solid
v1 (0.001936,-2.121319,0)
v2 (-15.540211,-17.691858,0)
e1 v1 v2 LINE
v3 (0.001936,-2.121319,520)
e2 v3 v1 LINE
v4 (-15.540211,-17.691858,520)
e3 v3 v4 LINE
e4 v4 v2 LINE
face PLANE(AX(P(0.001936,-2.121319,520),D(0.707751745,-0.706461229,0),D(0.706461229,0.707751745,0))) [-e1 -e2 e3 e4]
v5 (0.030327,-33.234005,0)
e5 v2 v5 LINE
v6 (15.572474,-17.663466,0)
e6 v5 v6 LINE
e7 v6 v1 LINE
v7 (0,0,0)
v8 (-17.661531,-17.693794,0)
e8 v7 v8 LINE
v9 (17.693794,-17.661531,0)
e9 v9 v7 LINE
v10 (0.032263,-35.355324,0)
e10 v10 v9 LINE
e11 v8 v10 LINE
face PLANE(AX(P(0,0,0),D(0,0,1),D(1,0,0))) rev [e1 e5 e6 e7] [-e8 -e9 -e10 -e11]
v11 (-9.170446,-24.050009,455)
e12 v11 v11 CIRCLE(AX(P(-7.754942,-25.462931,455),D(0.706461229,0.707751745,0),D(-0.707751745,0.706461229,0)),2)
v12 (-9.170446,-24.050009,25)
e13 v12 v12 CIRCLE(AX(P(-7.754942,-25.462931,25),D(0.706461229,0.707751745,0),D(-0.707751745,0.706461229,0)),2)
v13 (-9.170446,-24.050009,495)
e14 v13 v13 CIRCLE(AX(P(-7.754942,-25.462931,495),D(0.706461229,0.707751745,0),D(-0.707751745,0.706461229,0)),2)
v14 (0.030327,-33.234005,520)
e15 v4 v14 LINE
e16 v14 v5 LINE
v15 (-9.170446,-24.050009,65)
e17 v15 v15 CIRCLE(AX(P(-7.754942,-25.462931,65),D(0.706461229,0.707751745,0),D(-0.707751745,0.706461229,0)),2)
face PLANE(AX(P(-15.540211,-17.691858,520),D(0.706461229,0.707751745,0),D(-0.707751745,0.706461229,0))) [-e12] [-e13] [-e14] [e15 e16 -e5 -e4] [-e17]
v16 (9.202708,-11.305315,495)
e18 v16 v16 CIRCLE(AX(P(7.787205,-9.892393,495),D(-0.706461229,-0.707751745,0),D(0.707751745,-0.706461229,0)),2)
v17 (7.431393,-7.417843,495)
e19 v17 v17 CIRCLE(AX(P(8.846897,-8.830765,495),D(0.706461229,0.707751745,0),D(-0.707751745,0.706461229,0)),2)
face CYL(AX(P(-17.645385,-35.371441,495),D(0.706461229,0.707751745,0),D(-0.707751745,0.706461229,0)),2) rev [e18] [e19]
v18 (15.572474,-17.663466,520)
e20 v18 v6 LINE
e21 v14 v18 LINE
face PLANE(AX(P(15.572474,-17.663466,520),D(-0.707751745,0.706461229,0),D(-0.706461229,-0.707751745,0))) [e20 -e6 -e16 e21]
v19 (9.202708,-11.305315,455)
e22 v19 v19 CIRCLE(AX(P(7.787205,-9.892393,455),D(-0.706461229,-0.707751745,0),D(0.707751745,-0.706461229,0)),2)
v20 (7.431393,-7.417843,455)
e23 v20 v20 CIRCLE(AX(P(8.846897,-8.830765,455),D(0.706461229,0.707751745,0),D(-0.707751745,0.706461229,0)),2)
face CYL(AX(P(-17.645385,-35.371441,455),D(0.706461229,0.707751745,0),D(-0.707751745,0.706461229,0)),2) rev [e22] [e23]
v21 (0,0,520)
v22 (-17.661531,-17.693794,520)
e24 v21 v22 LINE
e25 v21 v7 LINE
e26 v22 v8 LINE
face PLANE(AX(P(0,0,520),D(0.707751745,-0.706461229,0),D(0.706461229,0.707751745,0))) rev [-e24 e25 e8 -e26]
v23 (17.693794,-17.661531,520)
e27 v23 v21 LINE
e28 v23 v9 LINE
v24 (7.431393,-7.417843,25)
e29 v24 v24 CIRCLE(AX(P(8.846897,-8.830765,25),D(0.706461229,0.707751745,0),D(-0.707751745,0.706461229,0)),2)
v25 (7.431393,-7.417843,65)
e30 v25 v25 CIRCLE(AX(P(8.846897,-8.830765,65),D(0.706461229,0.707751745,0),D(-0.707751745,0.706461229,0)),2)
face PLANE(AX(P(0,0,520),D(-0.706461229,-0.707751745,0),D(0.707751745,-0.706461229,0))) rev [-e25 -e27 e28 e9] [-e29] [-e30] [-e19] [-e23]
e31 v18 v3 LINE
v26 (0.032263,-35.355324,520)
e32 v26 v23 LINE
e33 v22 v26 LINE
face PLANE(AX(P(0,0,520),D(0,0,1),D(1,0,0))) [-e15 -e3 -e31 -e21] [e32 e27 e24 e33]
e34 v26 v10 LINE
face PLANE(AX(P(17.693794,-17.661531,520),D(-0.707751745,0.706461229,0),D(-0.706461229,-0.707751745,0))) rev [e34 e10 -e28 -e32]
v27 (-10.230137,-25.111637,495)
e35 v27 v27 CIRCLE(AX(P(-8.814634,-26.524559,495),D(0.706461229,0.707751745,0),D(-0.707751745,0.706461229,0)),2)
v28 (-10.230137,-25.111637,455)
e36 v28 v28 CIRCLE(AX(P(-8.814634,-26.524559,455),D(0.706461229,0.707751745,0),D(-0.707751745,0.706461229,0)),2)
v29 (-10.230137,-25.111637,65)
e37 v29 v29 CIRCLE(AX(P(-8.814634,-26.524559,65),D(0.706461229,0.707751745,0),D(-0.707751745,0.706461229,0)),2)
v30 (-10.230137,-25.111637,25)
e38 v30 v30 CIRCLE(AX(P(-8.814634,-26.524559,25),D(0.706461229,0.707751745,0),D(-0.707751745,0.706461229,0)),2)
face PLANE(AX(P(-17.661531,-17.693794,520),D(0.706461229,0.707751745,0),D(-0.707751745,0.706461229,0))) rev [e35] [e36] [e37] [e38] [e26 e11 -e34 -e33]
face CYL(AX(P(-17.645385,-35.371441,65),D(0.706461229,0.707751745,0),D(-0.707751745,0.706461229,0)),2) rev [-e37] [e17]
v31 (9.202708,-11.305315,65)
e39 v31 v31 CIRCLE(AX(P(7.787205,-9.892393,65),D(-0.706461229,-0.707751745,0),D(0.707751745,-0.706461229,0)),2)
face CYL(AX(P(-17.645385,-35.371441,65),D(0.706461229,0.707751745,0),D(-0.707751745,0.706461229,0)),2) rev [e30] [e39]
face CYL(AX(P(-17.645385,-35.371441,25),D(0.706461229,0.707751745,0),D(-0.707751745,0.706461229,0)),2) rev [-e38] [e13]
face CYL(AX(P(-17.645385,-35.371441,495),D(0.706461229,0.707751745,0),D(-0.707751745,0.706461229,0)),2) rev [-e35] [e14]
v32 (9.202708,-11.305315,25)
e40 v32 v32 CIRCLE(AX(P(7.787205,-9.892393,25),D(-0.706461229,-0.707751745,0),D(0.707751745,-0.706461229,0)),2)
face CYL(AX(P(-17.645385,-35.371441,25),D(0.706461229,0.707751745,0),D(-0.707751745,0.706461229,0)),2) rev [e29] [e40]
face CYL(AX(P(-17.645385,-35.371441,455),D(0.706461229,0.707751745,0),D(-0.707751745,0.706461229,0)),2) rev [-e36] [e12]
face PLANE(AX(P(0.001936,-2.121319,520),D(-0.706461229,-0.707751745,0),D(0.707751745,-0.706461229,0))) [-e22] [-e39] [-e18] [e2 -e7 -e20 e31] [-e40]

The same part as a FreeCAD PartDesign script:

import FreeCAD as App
import Part
import Sketcher
Q = App.Units.Quantity

doc = App.newDocument("Part")
params = doc.addObject("Spreadsheet::Sheet", "Params")
for row, (alias, value) in enumerate([
    ("sketch1_length", "25 mm"),
    ("sketch1_length2", "22 mm"),
    ("pad1_length", "520 mm"),
    ("sketch2_diameter", "4 mm"),
], start=1):
    params.set(f"A{row}", alias)
    params.set(f"B{row}", "=" + value)
    params.setAlias(f"B{row}", alias)

body = doc.addObject("PartDesign::Body", "Body")

sketch1 = doc.addObject("Sketcher::SketchObject", "Sketch")
body.addObject(sketch1)
sketch1.AttachmentSupport = (doc.XY_Plane, [""])
sketch1.MapMode = "FlatFace"
sketch1.addGeometry(Part.LineSegment(App.Vector(18, -18, 0), App.Vector(0, 0, 0)), False)
sketch1.addGeometry(Part.LineSegment(App.Vector(0, 0, 0), App.Vector(-18, -18, 0)), False)
sketch1.addGeometry(Part.LineSegment(App.Vector(-18, -18, 0), App.Vector(0, -35, 0)), False)
sketch1.addGeometry(Part.LineSegment(App.Vector(0, -35, 0), App.Vector(18, -18, 0)), False)
sketch1.addGeometry(Part.LineSegment(App.Vector(0, -2, 0), App.Vector(16, -18, 0)), False)
sketch1.addGeometry(Part.LineSegment(App.Vector(16, -18, 0), App.Vector(0, -33, 0)), False)
sketch1.addGeometry(Part.LineSegment(App.Vector(0, -33, 0), App.Vector(-16, -18, 0)), False)
sketch1.addGeometry(Part.LineSegment(App.Vector(-16, -18, 0), App.Vector(0, -2, 0)), False)
sketch1.addConstraint(Sketcher.Constraint("Coincident", 0, 2, 1, 1))
sketch1.addConstraint(Sketcher.Constraint("Coincident", 1, 2, 2, 1))
sketch1.addConstraint(Sketcher.Constraint("Coincident", 2, 2, 3, 1))
sketch1.addConstraint(Sketcher.Constraint("Coincident", 3, 2, 0, 1))
sketch1.addConstraint(Sketcher.Constraint("Coincident", 4, 2, 5, 1))
sketch1.addConstraint(Sketcher.Constraint("Coincident", 5, 2, 6, 1))
sketch1.addConstraint(Sketcher.Constraint("Coincident", 6, 2, 7, 1))
sketch1.addConstraint(Sketcher.Constraint("Coincident", 7, 2, 4, 1))
sketch1.addConstraint(Sketcher.Constraint("Coincident", 0, 2, -1, 1))
sketch1.addConstraint(Sketcher.Constraint("Perpendicular", 0, 1))
sketch1.addConstraint(Sketcher.Constraint("Perpendicular", 1, 2))
sketch1.addConstraint(Sketcher.Constraint("Perpendicular", 2, 3))
sketch1.addConstraint(Sketcher.Constraint("Perpendicular", 3, 4))
sketch1.addConstraint(Sketcher.Constraint("Perpendicular", 4, 5))
sketch1.addConstraint(Sketcher.Constraint("Perpendicular", 5, 6))
sketch1.addConstraint(Sketcher.Constraint("Perpendicular", 6, 7))
sketch1.addConstraint(Sketcher.Constraint("Equal", 0, 1))
sketch1.addConstraint(Sketcher.Constraint("Equal", 4, 5))
sketch1.addConstraint(Sketcher.Constraint("Distance", 0, Q("25 mm")))
sketch1.addConstraint(Sketcher.Constraint("Distance", 4, Q("22 mm")))
sketch1.addConstraint(Sketcher.Constraint("DistanceX", 1, 2, -1, 1, Q("17.661531 mm")))
sketch1.addConstraint(Sketcher.Constraint("DistanceX", 6, 2, -1, 1, Q("15.540211 mm")))
sketch1.addConstraint(Sketcher.Constraint("DistanceY", 7, 2, -1, 1, Q("2.121319 mm")))
sketch1.setExpression("Constraints[18]", "Params.sketch1_length")
sketch1.setExpression("Constraints[19]", "Params.sketch1_length2")
pad1 = doc.addObject("PartDesign::Pad", "Pad")
body.addObject(pad1)
pad1.Profile = sketch1
pad1.setExpression("Length", "Params.pad1_length")

sketch2 = doc.addObject("Sketcher::SketchObject", "Sketch001")
body.addObject(sketch2)
sketch2.Placement = App.Placement(App.Vector(0, 0, 0), App.Rotation(App.Vector(0.707751745, -0.706461229, 0), App.Vector(0, 0, -1.000000001), App.Vector(0.706461229, 0.707751745, 0), "ZXY"))
sketch2.addGeometry(Part.Circle(App.Vector(12.5, -455, 0), App.Vector(0, 0, 1), 2), False)
sketch2.addGeometry(Part.Circle(App.Vector(12.5, -495, 0), App.Vector(0, 0, 1), 2), False)
sketch2.addGeometry(Part.Circle(App.Vector(12.5, -25, 0), App.Vector(0, 0, 1), 2), False)
sketch2.addGeometry(Part.Circle(App.Vector(12.5, -65, 0), App.Vector(0, 0, 1), 2), False)
sketch2.addConstraint(Sketcher.Constraint("Equal", 0, 1))
sketch2.addConstraint(Sketcher.Constraint("Equal", 1, 2))
sketch2.addConstraint(Sketcher.Constraint("Equal", 2, 3))
sketch2.addConstraint(Sketcher.Constraint("Vertical", 0, 3, 1, 3))
sketch2.addConstraint(Sketcher.Constraint("Vertical", 1, 3, 2, 3))
sketch2.addConstraint(Sketcher.Constraint("Vertical", 2, 3, 3, 3))
sketch2.addConstraint(Sketcher.Constraint("Diameter", 0, Q("4 mm")))
sketch2.addConstraint(Sketcher.Constraint("DistanceY", 0, 3, -1, 1, Q("455.000001 mm")))
sketch2.addConstraint(Sketcher.Constraint("DistanceY", 1, 3, -1, 1, Q("495.000001 mm")))
sketch2.addConstraint(Sketcher.Constraint("DistanceY", 2, 3, -1, 1, Q("25 mm")))
sketch2.addConstraint(Sketcher.Constraint("DistanceY", 3, 3, -1, 1, Q("65 mm")))
sketch2.addConstraint(Sketcher.Constraint("DistanceX", -1, 1, 0, 3, Q("12.5 mm")))
sketch2.setExpression("Constraints[6]", "Params.sketch2_diameter")
pocket1 = doc.addObject("PartDesign::Pocket", "Pocket")
body.addObject(pocket1)
pocket1.Profile = sketch2
pocket1.Type = "ThroughAll"

doc.recompute()
